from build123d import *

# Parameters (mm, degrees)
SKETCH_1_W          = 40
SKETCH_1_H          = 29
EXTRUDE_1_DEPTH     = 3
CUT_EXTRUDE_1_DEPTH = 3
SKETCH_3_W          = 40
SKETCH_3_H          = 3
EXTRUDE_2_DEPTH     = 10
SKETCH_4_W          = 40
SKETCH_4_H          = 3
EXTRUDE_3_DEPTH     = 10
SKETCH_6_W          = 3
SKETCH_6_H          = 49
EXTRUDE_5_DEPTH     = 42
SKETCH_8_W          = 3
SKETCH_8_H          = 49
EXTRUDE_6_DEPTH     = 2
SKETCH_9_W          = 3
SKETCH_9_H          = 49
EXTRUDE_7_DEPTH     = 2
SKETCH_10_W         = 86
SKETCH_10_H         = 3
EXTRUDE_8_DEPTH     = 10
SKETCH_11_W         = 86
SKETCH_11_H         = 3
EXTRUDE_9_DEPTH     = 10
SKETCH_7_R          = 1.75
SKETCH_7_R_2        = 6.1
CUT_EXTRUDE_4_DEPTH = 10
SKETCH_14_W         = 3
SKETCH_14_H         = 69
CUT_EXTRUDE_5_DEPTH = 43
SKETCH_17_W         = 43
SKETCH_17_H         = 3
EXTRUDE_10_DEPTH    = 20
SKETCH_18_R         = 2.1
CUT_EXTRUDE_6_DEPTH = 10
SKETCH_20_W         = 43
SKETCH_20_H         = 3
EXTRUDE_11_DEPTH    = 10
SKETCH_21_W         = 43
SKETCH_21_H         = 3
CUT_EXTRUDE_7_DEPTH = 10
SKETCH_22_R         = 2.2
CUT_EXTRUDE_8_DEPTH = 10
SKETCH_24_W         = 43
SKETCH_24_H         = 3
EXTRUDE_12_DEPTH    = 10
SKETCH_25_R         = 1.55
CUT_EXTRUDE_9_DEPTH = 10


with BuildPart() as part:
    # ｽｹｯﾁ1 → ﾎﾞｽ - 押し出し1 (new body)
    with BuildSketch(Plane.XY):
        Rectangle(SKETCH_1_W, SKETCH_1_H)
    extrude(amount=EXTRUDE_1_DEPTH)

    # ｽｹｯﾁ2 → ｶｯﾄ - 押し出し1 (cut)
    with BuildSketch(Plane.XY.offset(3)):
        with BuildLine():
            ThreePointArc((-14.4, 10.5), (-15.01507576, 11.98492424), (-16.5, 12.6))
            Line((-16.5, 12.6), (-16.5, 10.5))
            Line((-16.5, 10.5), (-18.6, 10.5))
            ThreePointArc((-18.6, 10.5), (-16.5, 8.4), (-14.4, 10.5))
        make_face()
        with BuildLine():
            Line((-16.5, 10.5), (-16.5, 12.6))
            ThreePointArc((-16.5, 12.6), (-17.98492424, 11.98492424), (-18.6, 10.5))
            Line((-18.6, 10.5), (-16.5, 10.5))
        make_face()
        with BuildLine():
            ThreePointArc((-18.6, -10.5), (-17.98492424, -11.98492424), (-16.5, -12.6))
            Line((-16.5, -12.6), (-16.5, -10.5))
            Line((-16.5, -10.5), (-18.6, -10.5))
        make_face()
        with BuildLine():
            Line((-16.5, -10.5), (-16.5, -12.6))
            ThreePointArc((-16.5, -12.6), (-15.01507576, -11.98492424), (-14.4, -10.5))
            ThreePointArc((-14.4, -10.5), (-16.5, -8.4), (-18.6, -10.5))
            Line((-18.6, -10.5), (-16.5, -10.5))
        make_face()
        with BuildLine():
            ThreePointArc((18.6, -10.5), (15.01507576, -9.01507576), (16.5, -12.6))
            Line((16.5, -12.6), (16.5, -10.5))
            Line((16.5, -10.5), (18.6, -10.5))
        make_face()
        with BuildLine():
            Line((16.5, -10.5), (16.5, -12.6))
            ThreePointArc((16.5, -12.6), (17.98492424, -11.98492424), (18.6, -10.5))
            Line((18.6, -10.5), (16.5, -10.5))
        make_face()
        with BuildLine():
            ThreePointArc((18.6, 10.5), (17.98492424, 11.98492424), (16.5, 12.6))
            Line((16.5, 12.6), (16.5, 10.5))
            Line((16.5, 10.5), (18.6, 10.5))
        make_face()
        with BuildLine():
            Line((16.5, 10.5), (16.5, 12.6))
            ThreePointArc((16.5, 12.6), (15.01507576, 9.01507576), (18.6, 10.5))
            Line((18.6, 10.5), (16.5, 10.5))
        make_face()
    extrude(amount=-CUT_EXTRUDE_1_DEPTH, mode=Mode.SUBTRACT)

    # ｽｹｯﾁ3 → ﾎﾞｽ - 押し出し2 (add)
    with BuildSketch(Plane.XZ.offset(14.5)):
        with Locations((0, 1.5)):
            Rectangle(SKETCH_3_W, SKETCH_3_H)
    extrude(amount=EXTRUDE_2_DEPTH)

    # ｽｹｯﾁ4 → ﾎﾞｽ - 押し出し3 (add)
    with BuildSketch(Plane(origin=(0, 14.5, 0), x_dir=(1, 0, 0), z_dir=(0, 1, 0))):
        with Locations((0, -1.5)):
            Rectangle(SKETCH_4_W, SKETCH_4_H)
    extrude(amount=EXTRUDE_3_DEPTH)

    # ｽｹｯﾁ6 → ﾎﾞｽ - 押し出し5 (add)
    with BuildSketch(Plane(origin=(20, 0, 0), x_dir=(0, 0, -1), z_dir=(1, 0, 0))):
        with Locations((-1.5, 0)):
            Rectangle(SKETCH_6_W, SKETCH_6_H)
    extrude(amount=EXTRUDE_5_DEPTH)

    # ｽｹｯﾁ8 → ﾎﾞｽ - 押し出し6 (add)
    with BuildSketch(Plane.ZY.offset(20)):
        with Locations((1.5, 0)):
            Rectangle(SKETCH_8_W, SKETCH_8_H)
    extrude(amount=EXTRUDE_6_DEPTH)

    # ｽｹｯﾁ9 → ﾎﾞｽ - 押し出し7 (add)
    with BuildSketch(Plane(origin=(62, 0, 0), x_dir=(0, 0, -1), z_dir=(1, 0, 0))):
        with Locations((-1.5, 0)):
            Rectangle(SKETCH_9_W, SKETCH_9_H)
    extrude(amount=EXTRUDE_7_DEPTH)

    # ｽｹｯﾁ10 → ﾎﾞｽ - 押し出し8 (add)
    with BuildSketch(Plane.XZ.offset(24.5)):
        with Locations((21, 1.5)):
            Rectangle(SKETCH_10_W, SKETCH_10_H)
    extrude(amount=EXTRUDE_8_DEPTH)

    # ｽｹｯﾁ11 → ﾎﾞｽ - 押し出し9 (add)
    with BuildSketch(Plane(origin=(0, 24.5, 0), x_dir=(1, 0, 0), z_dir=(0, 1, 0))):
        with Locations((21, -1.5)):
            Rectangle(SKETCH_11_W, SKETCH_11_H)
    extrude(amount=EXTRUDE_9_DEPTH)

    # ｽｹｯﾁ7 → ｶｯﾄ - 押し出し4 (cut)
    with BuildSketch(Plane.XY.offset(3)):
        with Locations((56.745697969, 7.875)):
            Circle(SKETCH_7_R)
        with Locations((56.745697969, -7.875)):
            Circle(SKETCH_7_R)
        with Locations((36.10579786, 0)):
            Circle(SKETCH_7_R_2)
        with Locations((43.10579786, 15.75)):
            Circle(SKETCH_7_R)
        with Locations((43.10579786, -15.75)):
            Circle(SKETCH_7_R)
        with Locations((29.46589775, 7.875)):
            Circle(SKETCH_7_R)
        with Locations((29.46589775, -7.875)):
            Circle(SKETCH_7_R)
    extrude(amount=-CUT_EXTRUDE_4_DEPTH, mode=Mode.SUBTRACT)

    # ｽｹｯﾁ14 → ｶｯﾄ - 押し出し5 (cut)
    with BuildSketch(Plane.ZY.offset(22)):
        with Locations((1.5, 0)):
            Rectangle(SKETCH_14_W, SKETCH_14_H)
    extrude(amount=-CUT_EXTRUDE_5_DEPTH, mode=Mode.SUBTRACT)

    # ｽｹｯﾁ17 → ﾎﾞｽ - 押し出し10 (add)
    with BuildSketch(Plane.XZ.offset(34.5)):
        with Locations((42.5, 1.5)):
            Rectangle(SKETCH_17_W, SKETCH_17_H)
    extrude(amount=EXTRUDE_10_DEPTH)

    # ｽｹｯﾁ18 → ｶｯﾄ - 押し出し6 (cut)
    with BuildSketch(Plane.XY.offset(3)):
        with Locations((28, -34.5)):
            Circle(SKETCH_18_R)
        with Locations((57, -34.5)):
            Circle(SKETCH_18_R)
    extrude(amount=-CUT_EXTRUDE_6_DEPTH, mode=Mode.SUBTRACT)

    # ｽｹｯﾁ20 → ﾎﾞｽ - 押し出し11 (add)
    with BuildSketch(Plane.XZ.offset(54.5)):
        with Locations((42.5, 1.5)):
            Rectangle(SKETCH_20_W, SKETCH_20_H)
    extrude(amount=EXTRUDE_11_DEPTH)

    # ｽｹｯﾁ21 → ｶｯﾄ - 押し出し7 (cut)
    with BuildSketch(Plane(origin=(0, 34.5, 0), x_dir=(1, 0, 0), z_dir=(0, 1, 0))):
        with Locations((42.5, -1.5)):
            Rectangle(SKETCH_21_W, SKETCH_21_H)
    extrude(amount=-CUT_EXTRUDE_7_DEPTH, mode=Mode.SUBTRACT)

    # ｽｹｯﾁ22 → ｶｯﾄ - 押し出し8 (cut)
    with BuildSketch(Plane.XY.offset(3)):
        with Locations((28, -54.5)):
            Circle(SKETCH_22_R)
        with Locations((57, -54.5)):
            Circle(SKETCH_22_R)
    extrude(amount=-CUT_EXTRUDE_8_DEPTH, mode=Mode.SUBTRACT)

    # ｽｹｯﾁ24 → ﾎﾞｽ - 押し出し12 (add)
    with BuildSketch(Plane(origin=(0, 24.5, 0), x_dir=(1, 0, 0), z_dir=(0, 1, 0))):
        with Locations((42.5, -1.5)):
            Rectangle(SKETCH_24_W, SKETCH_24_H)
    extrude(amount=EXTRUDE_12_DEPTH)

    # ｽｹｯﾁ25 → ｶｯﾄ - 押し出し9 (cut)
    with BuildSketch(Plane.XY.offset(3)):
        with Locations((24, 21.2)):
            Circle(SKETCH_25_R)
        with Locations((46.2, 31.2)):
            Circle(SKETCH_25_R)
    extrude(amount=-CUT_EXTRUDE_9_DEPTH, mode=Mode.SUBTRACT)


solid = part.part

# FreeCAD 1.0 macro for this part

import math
import FreeCAD as App
import Part
import Sketcher

V = App.Vector
Q = App.Units.Quantity


def add_polygon(sketch, points):
    """Adds a closed chain of lines whose ends are joined by coincident constraints."""
    first, n = sketch.GeometryCount, len(points)
    for a, b in zip(points, points[1:] + points[:1]):
        sketch.addGeometry(Part.LineSegment(App.Vector(*a, 0), App.Vector(*b, 0)), False)
    for i in range(n):
        sketch.addConstraint(Sketcher.Constraint("Coincident", first + i, 2, first + (i + 1) % n, 1))

doc = App.newDocument("Part")
params = doc.addObject("Spreadsheet::Sheet", "Params")
for row, (alias, value) in enumerate([
    ("sketch1_width", "40 mm"),
    ("sketch1_height", "29 mm"),
    ("pad1_length", "3 mm"),
    ("sketch2_radius", "2.1 mm"),
    ("pocket1_length", "3 mm"),
    ("sketch3_width", "40 mm"),
    ("sketch3_height", "3 mm"),
    ("pad2_length", "10 mm"),
    ("sketch4_width", "40 mm"),
    ("sketch4_height", "3 mm"),
    ("pad3_length", "10 mm"),
    ("sketch5_width", "49 mm"),
    ("sketch5_height", "3 mm"),
    ("pad4_length", "42 mm"),
    ("sketch6_width", "49 mm"),
    ("sketch6_height", "3 mm"),
    ("pad5_length", "2 mm"),
    ("sketch7_width", "49 mm"),
    ("sketch7_height", "3 mm"),
    ("pad6_length", "2 mm"),
    ("sketch8_width", "86 mm"),
    ("sketch8_height", "3 mm"),
    ("pad7_length", "10 mm"),
    ("sketch9_width", "86 mm"),
    ("sketch9_height", "3 mm"),
    ("pad8_length", "10 mm"),
    ("sketch10_diameter", "3.5 mm"),
    ("sketch10_diameter2", "12.2 mm"),
    ("pocket2_length", "10 mm"),
    ("sketch11_width", "69 mm"),
    ("sketch11_height", "3 mm"),
    ("pocket3_length", "43 mm"),
    ("sketch12_width", "43 mm"),
    ("sketch12_height", "3 mm"),
    ("pad9_length", "20 mm"),
    ("sketch13_diameter", "4.2 mm"),
    ("pocket4_length", "10 mm"),
    ("sketch14_width", "43 mm"),
    ("sketch14_height", "3 mm"),
    ("pad10_length", "10 mm"),
    ("sketch15_width", "43 mm"),
    ("sketch15_height", "3 mm"),
    ("pocket5_length", "10 mm"),
    ("sketch16_diameter", "4.4 mm"),
    ("pocket6_length", "10 mm"),
    ("sketch17_width", "43 mm"),
    ("sketch17_height", "3 mm"),
    ("pad11_length", "10 mm"),
    ("sketch18_diameter", "3.1 mm"),
    ("pocket7_length", "10 mm"),
], start=1):
    params.set(f"A{row}", alias)
    params.set(f"B{row}", "=" + value)
    params.setAlias(f"B{row}", alias)

body = doc.addObject("PartDesign::Body", "Body")

sketch1 = doc.addObject("Sketcher::SketchObject", "Sketch")
body.addObject(sketch1)
sketch1.AttachmentSupport = (doc.XY_Plane, [""])
sketch1.MapMode = "FlatFace"
add_polygon(sketch1, [(-20, 14), (-20, -14), (20, -14), (20, 14)])
sketch1.addConstraint([
    Sketcher.Constraint("Vertical", 0),
    Sketcher.Constraint("Horizontal", 1),
    Sketcher.Constraint("Vertical", 2),
    Sketcher.Constraint("Horizontal", 3),
    Sketcher.Constraint("Symmetric", 0, 2, 2, 2, -1, 1),
    Sketcher.Constraint("DistanceX", 1, 1, 1, 2, Q("40 mm")),
    Sketcher.Constraint("DistanceY", 0, 2, 0, 1, Q("29 mm")),
])
sketch1.setExpression("Constraints[9]", "Params.sketch1_width")
sketch1.setExpression("Constraints[10]", "Params.sketch1_height")
pad1 = doc.addObject("PartDesign::Pad", "Pad")
body.addObject(pad1)
pad1.Profile = sketch1
pad1.setExpression("Length", "Params.pad1_length")

sketch2 = doc.addObject("Sketcher::SketchObject", "Sketch001")
body.addObject(sketch2)
sketch2.AttachmentSupport = (doc.XY_Plane, [""])
sketch2.MapMode = "FlatFace"
sketch2.AttachmentOffset = App.Placement(V(0, 0, 3), App.Rotation())
sketch2.addGeometry([
    Part.ArcOfCircle(Part.Circle(V(-16.5, 10.5, 0), V(0, 0, 1), 2.1), math.radians(0), math.radians(90)),
    Part.ArcOfCircle(Part.Circle(V(-16.5, 10.5, 0), V(0, 0, 1), 2.1), math.radians(90), math.radians(180)),
    Part.ArcOfCircle(Part.Circle(V(-16.5, 10.5, 0), V(0, 0, 1), 2.1), math.radians(180), math.radians(360)),
    Part.ArcOfCircle(Part.Circle(V(-16.5, -10.5, 0), V(0, 0, 1), 2.1), math.radians(-180), math.radians(-90)),
    Part.ArcOfCircle(Part.Circle(V(-16.5, -10.5, 0), V(0, 0, 1), 2.1), math.radians(-90), math.radians(0)),
    Part.ArcOfCircle(Part.Circle(V(-16.5, -10.5, 0), V(0, 0, 1), 2.1), math.radians(0), math.radians(180)),
    Part.ArcOfCircle(Part.Circle(V(16.5, -10.5, 0), V(0, 0, 1), 2.1), math.radians(0), math.radians(270)),
    Part.ArcOfCircle(Part.Circle(V(16.5, -10.5, 0), V(0, 0, 1), 2.1), math.radians(-90), math.radians(0)),
    Part.ArcOfCircle(Part.Circle(V(16.5, 10.5, 0), V(0, 0, 1), 2.1), math.radians(0), math.radians(90)),
    Part.ArcOfCircle(Part.Circle(V(16.5, 10.5, 0), V(0, 0, 1), 2.1), math.radians(90), math.radians(360)),
], False)
sketch2.addConstraint([
    Sketcher.Constraint("Tangent", 0, 2, 1, 1),
    Sketcher.Constraint("Tangent", 1, 2, 2, 1),
    Sketcher.Constraint("Tangent", 2, 2, 0, 1),
    Sketcher.Constraint("Tangent", 3, 2, 4, 1),
    Sketcher.Constraint("Tangent", 4, 2, 5, 1),
    Sketcher.Constraint("Tangent", 5, 2, 3, 1),
    Sketcher.Constraint("Tangent", 6, 1, 7, 2),
    Sketcher.Constraint("Coincident", 7, 1, 6, 2),
    Sketcher.Constraint("Tangent", 8, 1, 9, 2),
    Sketcher.Constraint("Coincident", 9, 1, 8, 2),
    Sketcher.Constraint("Equal", 2, 3),
    Sketcher.Constraint("Equal", 5, 6),
    Sketcher.Constraint("Equal", 7, 8),
    Sketcher.Constraint("Symmetric", 0, 3, 6, 3, -1, 1),
    Sketcher.Constraint("Symmetric", 3, 3, 8, 3, -1, 1),
    Sketcher.Constraint("Symmetric", 3, 3, 6, 3, -2),
    Sketcher.Constraint("Horizontal", 9, 3, 1, 2),
    Sketcher.Constraint("Horizontal", 1, 2, 2, 2),
    Sketcher.Constraint("Horizontal", 7, 3, 4, 2),
    Sketcher.Constraint("Horizontal", 4, 2, 5, 2),
    Sketcher.Constraint("Horizontal", 5, 2, 6, 1),
    Sketcher.Constraint("Horizontal", 2, 2, 8, 1),
    Sketcher.Constraint("Vertical", 5, 3, 0, 2),
    Sketcher.Constraint("Vertical", 0, 2, 3, 2),
    Sketcher.Constraint("Vertical", 9, 3, 7, 1),
    Sketcher.Constraint("Vertical", 7, 1, 9, 1),
    Sketcher.Constraint("Radius", 0, Q("2.1 mm")),
    Sketcher.Constraint("DistanceY", 3, 3, 0, 3, Q("21 mm")),
    Sketcher.Constraint("DistanceX", 3, 3, 6, 3, Q("33 mm")),
])
sketch2.setExpression("Constraints[26]", "Params.sketch2_radius")
pocket1 = doc.addObject("PartDesign::Pocket", "Pocket")
body.addObject(pocket1)
pocket1.Profile = sketch2
pocket1.setExpression("Length", "Params.pocket1_length")

sketch3 = doc.addObject("Sketcher::SketchObject", "Sketch002")
body.addObject(sketch3)
sketch3.AttachmentSupport = (doc.XZ_Plane, [""])
sketch3.MapMode = "FlatFace"
sketch3.AttachmentOffset = App.Placement(V(0, 0, 14.5), App.Rotation())
add_polygon(sketch3, [(-20, 3), (-20, 0), (20, 0), (20, 3)])
sketch3.addConstraint([
    Sketcher.Constraint("Vertical", 0),
    Sketcher.Constraint("Horizontal", 1),
    Sketcher.Constraint("Vertical", 2),
    Sketcher.Constraint("Horizontal", 3),
    Sketcher.Constraint("Symmetric", 0, 2, 1, 2, -1, 1),
    Sketcher.Constraint("DistanceX", 1, 1, 1, 2, Q("40 mm")),
    Sketcher.Constraint("DistanceY", 0, 2, 0, 1, Q("3 mm")),
])
sketch3.setExpression("Constraints[9]", "Params.sketch3_width")
sketch3.setExpression("Constraints[10]", "Params.sketch3_height")
pad2 = doc.addObject("PartDesign::Pad", "Pad001")
body.addObject(pad2)
pad2.Profile = sketch3
pad2.setExpression("Length", "Params.pad2_length")

sketch4 = doc.addObject("Sketcher::SketchObject", "Sketch003")
body.addObject(sketch4)
sketch4.AttachmentSupport = (doc.XZ_Plane, [""])
sketch4.MapMode = "FlatFace"
sketch4.AttachmentOffset = App.Placement(V(0, 0, -14.5), App.Rotation())
add_polygon(sketch4, [(-20, 0), (-20, 3), (20, 3), (20, 0)])
sketch4.addConstraint([
    Sketcher.Constraint("Vertical", 0),
    Sketcher.Constraint("Horizontal", 1),
    Sketcher.Constraint("Vertical", 2),
    Sketcher.Constraint("Horizontal", 3),
    Sketcher.Constraint("Symmetric", 2, 2, 3, 2, -1, 1),
    Sketcher.Constraint("DistanceX", 1, 1, 1, 2, Q("40 mm")),
    Sketcher.Constraint("DistanceY", 0, 1, 0, 2, Q("3 mm")),
])
sketch4.setExpression("Constraints[9]", "Params.sketch4_width")
sketch4.setExpression("Constraints[10]", "Params.sketch4_height")
pad3 = doc.addObject("PartDesign::Pad", "Pad002")
body.addObject(pad3)
pad3.Profile = sketch4
pad3.setExpression("Length", "Params.pad3_length")
pad3.Reversed = True

sketch5 = doc.addObject("Sketcher::SketchObject", "Sketch004")
body.addObject(sketch5)
sketch5.AttachmentSupport = (doc.YZ_Plane, [""])
sketch5.MapMode = "FlatFace"
sketch5.AttachmentOffset = App.Placement(V(0, 0, 20), App.Rotation())
add_polygon(sketch5, [(24.5, 3), (-24.5, 3), (-24.5, 0), (24.5, 0)])
sketch5.addConstraint([
    Sketcher.Constraint("Horizontal", 0),
    Sketcher.Constraint("Vertical", 1),
    Sketcher.Constraint("Horizontal", 2),
    Sketcher.Constraint("Vertical", 3),
    Sketcher.Constraint("Symmetric", 1, 2, 2, 2, -1, 1),
    Sketcher.Constraint("DistanceX", 0, 2, 0, 1, Q("49 mm")),
    Sketcher.Constraint("DistanceY", 1, 2, 1, 1, Q("3 mm")),
])
sketch5.setExpression("Constraints[9]", "Params.sketch5_width")
sketch5.setExpression("Constraints[10]", "Params.sketch5_height")
pad4 = doc.addObject("PartDesign::Pad", "Pad003")
body.addObject(pad4)
pad4.Profile = sketch5
pad4.setExpression("Length", "Params.pad4_length")

sketch6 = doc.addObject("Sketcher::SketchObject", "Sketch005")
body.addObject(sketch6)
sketch6.AttachmentSupport = (doc.YZ_Plane, [""])
sketch6.MapMode = "FlatFace"
sketch6.AttachmentOffset = App.Placement(V(0, 0, -20), App.Rotation())
add_polygon(sketch6, [(24.5, 0), (-24.5, 0), (-24.5, 3), (24.5, 3)])
sketch6.addConstraint([
    Sketcher.Constraint("Horizontal", 0),
    Sketcher.Constraint("Vertical", 1),
    Sketcher.Constraint("Horizontal", 2),
    Sketcher.Constraint("Vertical", 3),
    Sketcher.Constraint("Symmetric", 0, 2, 3, 2, -1, 1),
    Sketcher.Constraint("DistanceX", 0, 2, 0, 1, Q("49 mm")),
    Sketcher.Constraint("DistanceY", 1, 1, 1, 2, Q("3 mm")),
])
sketch6.setExpression("Constraints[9]", "Params.sketch6_width")
sketch6.setExpression("Constraints[10]", "Params.sketch6_height")
pad5 = doc.addObject("PartDesign::Pad", "Pad004")
body.addObject(pad5)
pad5.Profile = sketch6
pad5.setExpression("Length", "Params.pad5_length")
pad5.Reversed = True

sketch7 = doc.addObject("Sketcher::SketchObject", "Sketch006")
body.addObject(sketch7)
sketch7.AttachmentSupport = (doc.YZ_Plane, [""])
sketch7.MapMode = "FlatFace"
sketch7.AttachmentOffset = App.Placement(V(0, 0, 62), App.Rotation())
add_polygon(sketch7, [(24.5, 3), (-24.5, 3), (-24.5, 0), (24.5, 0)])
sketch7.addConstraint([
    Sketcher.Constraint("Horizontal", 0),
    Sketcher.Constraint("Vertical", 1),
    Sketcher.Constraint("Horizontal", 2),
    Sketcher.Constraint("Vertical", 3),
    Sketcher.Constraint("Symmetric", 1, 2, 2, 2, -1, 1),
    Sketcher.Constraint("DistanceX", 0, 2, 0, 1, Q("49 mm")),
    Sketcher.Constraint("DistanceY", 1, 2, 1, 1, Q("3 mm")),
])
sketch7.setExpression("Constraints[9]", "Params.sketch7_width")
sketch7.setExpression("Constraints[10]", "Params.sketch7_height")
pad6 = doc.addObject("PartDesign::Pad", "Pad005")
body.addObject(pad6)
pad6.Profile = sketch7
pad6.setExpression("Length", "Params.pad6_length")

sketch8 = doc.addObject("Sketcher::SketchObject", "Sketch007")
body.addObject(sketch8)
sketch8.AttachmentSupport = (doc.XZ_Plane, [""])
sketch8.MapMode = "FlatFace"
sketch8.AttachmentOffset = App.Placement(V(0, 0, 24.5), App.Rotation())
add_polygon(sketch8, [(-22, 3), (-22, 0), (64, 0), (64, 3)])
sketch8.addConstraint([
    Sketcher.Constraint("Vertical", 0),
    Sketcher.Constraint("Horizontal", 1),
    Sketcher.Constraint("Vertical", 2),
    Sketcher.Constraint("Horizontal", 3),
    Sketcher.Constraint("PointOnObject", 0, 2, -1),
    Sketcher.Constraint("DistanceX", 1, 1, 1, 2, Q("86 mm")),
    Sketcher.Constraint("DistanceY", 0, 2, 0, 1, Q("3 mm")),
    Sketcher.Constraint("DistanceX", 0, 2, -1, 1, Q("22 mm")),
])
sketch8.setExpression("Constraints[9]", "Params.sketch8_width")
sketch8.setExpression("Constraints[10]", "Params.sketch8_height")
pad7 = doc.addObject("PartDesign::Pad", "Pad006")
body.addObject(pad7)
pad7.Profile = sketch8
pad7.setExpression("Length", "Params.pad7_length")

sketch9 = doc.addObject("Sketcher::SketchObject", "Sketch008")
body.addObject(sketch9)
sketch9.AttachmentSupport = (doc.XZ_Plane, [""])
sketch9.MapMode = "FlatFace"
sketch9.AttachmentOffset = App.Placement(V(0, 0, -24.5), App.Rotation())
add_polygon(sketch9, [(-22, 0), (-22, 3), (64, 3), (64, 0)])
sketch9.addConstraint([
    Sketcher.Constraint("Vertical", 0),
    Sketcher.Constraint("Horizontal", 1),
    Sketcher.Constraint("Vertical", 2),
    Sketcher.Constraint("Horizontal", 3),
    Sketcher.Constraint("PointOnObject", 2, 2, -1),
    Sketcher.Constraint("DistanceX", 1, 1, 1, 2, Q("86 mm")),
    Sketcher.Constraint("DistanceY", 0, 1, 0, 2, Q("3 mm")),
    Sketcher.Constraint("DistanceX", 0, 2, -1, 1, Q("22 mm")),
])
sketch9.setExpression("Constraints[9]", "Params.sketch9_width")
sketch9.setExpression("Constraints[10]", "Params.sketch9_height")
pad8 = doc.addObject("PartDesign::Pad", "Pad007")
body.addObject(pad8)
pad8.Profile = sketch9
pad8.setExpression("Length", "Params.pad8_length")
pad8.Reversed = True

sketch10 = doc.addObject("Sketcher::SketchObject", "Sketch009")
body.addObject(sketch10)
sketch10.AttachmentSupport = (doc.XY_Plane, [""])
sketch10.MapMode = "FlatFace"
sketch10.AttachmentOffset = App.Placement(V(0, 0, 3), App.Rotation())
sketch10.addGeometry([
    Part.Circle(V(56.7, 7.9, 0), V(0, 0, 1), 1.8),
    Part.Circle(V(56.7, -7.9, 0), V(0, 0, 1), 1.8),
    Part.Circle(V(36.1, 0, 0), V(0, 0, 1), 6.1),
    Part.Circle(V(43.1, 15.8, 0), V(0, 0, 1), 1.8),
    Part.Circle(V(43.1, -15.8, 0), V(0, 0, 1), 1.8),
    Part.Circle(V(29.5, 7.9, 0), V(0, 0, 1), 1.8),
    Part.Circle(V(29.5, -7.9, 0), V(0, 0, 1), 1.8),
], False)
sketch10.addConstraint([
    Sketcher.Constraint("Equal", 0, 1),
    Sketcher.Constraint("Equal", 1, 3),
    Sketcher.Constraint("Equal", 3, 4),
    Sketcher.Constraint("Equal", 4, 5),
    Sketcher.Constraint("Equal", 5, 6),
    Sketcher.Constraint("Symmetric", 0, 3, 1, 3, -1),
    Sketcher.Constraint("Symmetric", 3, 3, 4, 3, -1),
    Sketcher.Constraint("Symmetric", 5, 3, 6, 3, -1),
    Sketcher.Constraint("PointOnObject", 2, 3, -1),
    Sketcher.Constraint("Horizontal", 0, 3, 5, 3),
    Sketcher.Constraint("Diameter", 0, Q("3.5 mm")),
    Sketcher.Constraint("Diameter", 2, Q("12.2 mm")),
    Sketcher.Constraint("DistanceX", 2, 3, 3, 3, Q("7 mm")),
    Sketcher.Constraint("DistanceY", 4, 3, 3, 3, Q("31.5 mm")),
    Sketcher.Constraint("DistanceY", 1, 3, 0, 3, Q("15.75 mm")),
    Sketcher.Constraint("DistanceX", 2, 3, 0, 3, Q("20.6399 mm")),
    Sketcher.Constraint("DistanceX", 5, 3, 2, 3, Q("6.6399 mm")),
    Sketcher.Constraint("DistanceX", -1, 1, 0, 3, Q("56.745698 mm")),
])
sketch10.setExpression("Constraints[10]", "Params.sketch10_diameter")
sketch10.setExpression("Constraints[11]", "Params.sketch10_diameter2")
pocket2 = doc.addObject("PartDesign::Pocket", "Pocket001")
body.addObject(pocket2)
pocket2.Profile = sketch10
pocket2.setExpression("Length", "Params.pocket2_length")

sketch11 = doc.addObject("Sketcher::SketchObject", "Sketch010")
body.addObject(sketch11)
sketch11.AttachmentSupport = (doc.YZ_Plane, [""])
sketch11.MapMode = "FlatFace"
sketch11.AttachmentOffset = App.Placement(V(0, 0, -22), App.Rotation())
add_polygon(sketch11, [(34.5, 0), (-34.5, 0), (-34.5, 3), (34.5, 3)])
sketch11.addConstraint([
    Sketcher.Constraint("Horizontal", 0),
    Sketcher.Constraint("Vertical", 1),
    Sketcher.Constraint("Horizontal", 2),
    Sketcher.Constraint("Vertical", 3),
    Sketcher.Constraint("Symmetric", 0, 2, 3, 2, -1, 1),
    Sketcher.Constraint("DistanceX", 0, 2, 0, 1, Q("69 mm")),
    Sketcher.Constraint("DistanceY", 1, 1, 1, 2, Q("3 mm")),
])
sketch11.setExpression("Constraints[9]", "Params.sketch11_width")
sketch11.setExpression("Constraints[10]", "Params.sketch11_height")
pocket3 = doc.addObject("PartDesign::Pocket", "Pocket002")
body.addObject(pocket3)
pocket3.Profile = sketch11
pocket3.setExpression("Length", "Params.pocket3_length")
pocket3.Reversed = True

sketch12 = doc.addObject("Sketcher::SketchObject", "Sketch011")
body.addObject(sketch12)
sketch12.AttachmentSupport = (doc.XZ_Plane, [""])
sketch12.MapMode = "FlatFace"
sketch12.AttachmentOffset = App.Placement(V(0, 0, 34.5), App.Rotation())
add_polygon(sketch12, [(21, 3), (21, 0), (64, 0), (64, 3)])
sketch12.addConstraint([
    Sketcher.Constraint("Vertical", 0),
    Sketcher.Constraint("Horizontal", 1),
    Sketcher.Constraint("Vertical", 2),
    Sketcher.Constraint("Horizontal", 3),
    Sketcher.Constraint("PointOnObject", 0, 2, -1),
    Sketcher.Constraint("DistanceX", 1, 1, 1, 2, Q("43 mm")),
    Sketcher.Constraint("DistanceY", 0, 2, 0, 1, Q("3 mm")),
    Sketcher.Constraint("DistanceX", -1, 1, 0, 2, Q("21 mm")),
])
sketch12.setExpression("Constraints[9]", "Params.sketch12_width")
sketch12.setExpression("Constraints[10]", "Params.sketch12_height")
pad9 = doc.addObject("PartDesign::Pad", "Pad008")
body.addObject(pad9)
pad9.Profile = sketch12
pad9.setExpression("Length", "Params.pad9_length")

sketch13 = doc.addObject("Sketcher::SketchObject", "Sketch012")
body.addObject(sketch13)
sketch13.AttachmentSupport = (doc.XY_Plane, [""])
sketch13.MapMode = "FlatFace"
sketch13.AttachmentOffset = App.Placement(V(0, 0, 3), App.Rotation())
sketch13.addGeometry([
    Part.Circle(V(28, -34.5, 0), V(0, 0, 1), 2.1),
    Part.Circle(V(57, -34.5, 0), V(0, 0, 1), 2.1),
], False)
sketch13.addConstraint([
    Sketcher.Constraint("Equal", 0, 1),
    Sketcher.Constraint("Horizontal", 0, 3, 1, 3),
    Sketcher.Constraint("Diameter", 0, Q("4.2 mm")),
    Sketcher.Constraint("DistanceX", -1, 1, 0, 3, Q("28 mm")),
    Sketcher.Constraint("DistanceX", -1, 1, 1, 3, Q("57 mm")),
    Sketcher.Constraint("DistanceY", 0, 3, -1, 1, Q("34.5 mm")),
])
sketch13.setExpression("Constraints[2]", "Params.sketch13_diameter")
pocket4 = doc.addObject("PartDesign::Pocket", "Pocket003")
body.addObject(pocket4)
pocket4.Profile = sketch13
pocket4.setExpression("Length", "Params.pocket4_length")

sketch14 = doc.addObject("Sketcher::SketchObject", "Sketch013")
body.addObject(sketch14)
sketch14.AttachmentSupport = (doc.XZ_Plane, [""])
sketch14.MapMode = "FlatFace"
sketch14.AttachmentOffset = App.Placement(V(0, 0, 54.5), App.Rotation())
add_polygon(sketch14, [(21, 3), (21, 0), (64, 0), (64, 3)])
sketch14.addConstraint([
    Sketcher.Constraint("Vertical", 0),
    Sketcher.Constraint("Horizontal", 1),
    Sketcher.Constraint("Vertical", 2),
    Sketcher.Constraint("Horizontal", 3),
    Sketcher.Constraint("PointOnObject", 0, 2, -1),
    Sketcher.Constraint("DistanceX", 1, 1, 1, 2, Q("43 mm")),
    Sketcher.Constraint("DistanceY", 0, 2, 0, 1, Q("3 mm")),
    Sketcher.Constraint("DistanceX", -1, 1, 0, 2, Q("21 mm")),
])
sketch14.setExpression("Constraints[9]", "Params.sketch14_width")
sketch14.setExpression("Constraints[10]", "Params.sketch14_height")
pad10 = doc.addObject("PartDesign::Pad", "Pad009")
body.addObject(pad10)
pad10.Profile = sketch14
pad10.setExpression("Length", "Params.pad10_length")

sketch15 = doc.addObject("Sketcher::SketchObject", "Sketch014")
body.addObject(sketch15)
sketch15.AttachmentSupport = (doc.XZ_Plane, [""])
sketch15.MapMode = "FlatFace"
sketch15.AttachmentOffset = App.Placement(V(0, 0, -34.5), App.Rotation())
add_polygon(sketch15, [(21, 0), (21, 3), (64, 3), (64, 0)])
sketch15.addConstraint([
    Sketcher.Constraint("Vertical", 0),
    Sketcher.Constraint("Horizontal", 1),
    Sketcher.Constraint("Vertical", 2),
    Sketcher.Constraint("Horizontal", 3),
    Sketcher.Constraint("PointOnObject", 2, 2, -1),
    Sketcher.Constraint("DistanceX", 1, 1, 1, 2, Q("43 mm")),
    Sketcher.Constraint("DistanceY", 0, 1, 0, 2, Q("3 mm")),
    Sketcher.Constraint("DistanceX", -1, 1, 0, 2, Q("21 mm")),
])
sketch15.setExpression("Constraints[9]", "Params.sketch15_width")
sketch15.setExpression("Constraints[10]", "Params.sketch15_height")
pocket5 = doc.addObject("PartDesign::Pocket", "Pocket004")
body.addObject(pocket5)
pocket5.Profile = sketch15
pocket5.setExpression("Length", "Params.pocket5_length")
pocket5.Reversed = True

sketch16 = doc.addObject("Sketcher::SketchObject", "Sketch015")
body.addObject(sketch16)
sketch16.AttachmentSupport = (doc.XY_Plane, [""])
sketch16.MapMode = "FlatFace"
sketch16.AttachmentOffset = App.Placement(V(0, 0, 3), App.Rotation())
sketch16.addGeometry([
    Part.Circle(V(28, -54.5, 0), V(0, 0, 1), 2.2),
    Part.Circle(V(57, -54.5, 0), V(0, 0, 1), 2.2),
], False)
sketch16.addConstraint([
    Sketcher.Constraint("Equal", 0, 1),
    Sketcher.Constraint("Horizontal", 0, 3, 1, 3),
    Sketcher.Constraint("Diameter", 0, Q("4.4 mm")),
    Sketcher.Constraint("DistanceX", -1, 1, 0, 3, Q("28 mm")),
    Sketcher.Constraint("DistanceX", -1, 1, 1, 3, Q("57 mm")),
    Sketcher.Constraint("DistanceY", 0, 3, -1, 1, Q("54.5 mm")),
])
sketch16.setExpression("Constraints[2]", "Params.sketch16_diameter")
pocket6 = doc.addObject("PartDesign::Pocket", "Pocket005")
body.addObject(pocket6)
pocket6.Profile = sketch16
pocket6.setExpression("Length", "Params.pocket6_length")

sketch17 = doc.addObject("Sketcher::SketchObject", "Sketch016")
body.addObject(sketch17)
sketch17.AttachmentSupport = (doc.XZ_Plane, [""])
sketch17.MapMode = "FlatFace"
sketch17.AttachmentOffset = App.Placement(V(0, 0, -24.5), App.Rotation())
add_polygon(sketch17, [(21, 0), (21, 3), (64, 3), (64, 0)])
sketch17.addConstraint([
    Sketcher.Constraint("Vertical", 0),
    Sketcher.Constraint("Horizontal", 1),
    Sketcher.Constraint("Vertical", 2),
    Sketcher.Constraint("Horizontal", 3),
    Sketcher.Constraint("PointOnObject", 2, 2, -1),
    Sketcher.Constraint("DistanceX", 1, 1, 1, 2, Q("43 mm")),
    Sketcher.Constraint("DistanceY", 0, 1, 0, 2, Q("3 mm")),
    Sketcher.Constraint("DistanceX", -1, 1, 0, 2, Q("21 mm")),
])
sketch17.setExpression("Constraints[9]", "Params.sketch17_width")
sketch17.setExpression("Constraints[10]", "Params.sketch17_height")
pad11 = doc.addObject("PartDesign::Pad", "Pad010")
body.addObject(pad11)
pad11.Profile = sketch17
pad11.setExpression("Length", "Params.pad11_length")
pad11.Reversed = True

sketch18 = doc.addObject("Sketcher::SketchObject", "Sketch017")
body.addObject(sketch18)
sketch18.AttachmentSupport = (doc.XY_Plane, [""])
sketch18.MapMode = "FlatFace"
sketch18.AttachmentOffset = App.Placement(V(0, 0, 3), App.Rotation())
sketch18.addGeometry([
    Part.Circle(V(24, 21.2, 0), V(0, 0, 1), 1.6),
    Part.Circle(V(46.2, 31.2, 0), V(0, 0, 1), 1.6),
], False)
sketch18.addConstraint([
    Sketcher.Constraint("Equal", 0, 1),
    Sketcher.Constraint("Diameter", 0, Q("3.1 mm")),
    Sketcher.Constraint("DistanceX", -1, 1, 0, 3, Q("24 mm")),
    Sketcher.Constraint("DistanceY", 0, 3, 1, 3, Q("10 mm")),
    Sketcher.Constraint("DistanceY", -1, 1, 0, 3, Q("21.2 mm")),
    Sketcher.Constraint("DistanceX", -1, 1, 1, 3, Q("46.2 mm")),
])
sketch18.setExpression("Constraints[1]", "Params.sketch18_diameter")
pocket7 = doc.addObject("PartDesign::Pocket", "Pocket006")
body.addObject(pocket7)
pocket7.Profile = sketch18
pocket7.setExpression("Length", "Params.pocket7_length")

doc.recompute()
